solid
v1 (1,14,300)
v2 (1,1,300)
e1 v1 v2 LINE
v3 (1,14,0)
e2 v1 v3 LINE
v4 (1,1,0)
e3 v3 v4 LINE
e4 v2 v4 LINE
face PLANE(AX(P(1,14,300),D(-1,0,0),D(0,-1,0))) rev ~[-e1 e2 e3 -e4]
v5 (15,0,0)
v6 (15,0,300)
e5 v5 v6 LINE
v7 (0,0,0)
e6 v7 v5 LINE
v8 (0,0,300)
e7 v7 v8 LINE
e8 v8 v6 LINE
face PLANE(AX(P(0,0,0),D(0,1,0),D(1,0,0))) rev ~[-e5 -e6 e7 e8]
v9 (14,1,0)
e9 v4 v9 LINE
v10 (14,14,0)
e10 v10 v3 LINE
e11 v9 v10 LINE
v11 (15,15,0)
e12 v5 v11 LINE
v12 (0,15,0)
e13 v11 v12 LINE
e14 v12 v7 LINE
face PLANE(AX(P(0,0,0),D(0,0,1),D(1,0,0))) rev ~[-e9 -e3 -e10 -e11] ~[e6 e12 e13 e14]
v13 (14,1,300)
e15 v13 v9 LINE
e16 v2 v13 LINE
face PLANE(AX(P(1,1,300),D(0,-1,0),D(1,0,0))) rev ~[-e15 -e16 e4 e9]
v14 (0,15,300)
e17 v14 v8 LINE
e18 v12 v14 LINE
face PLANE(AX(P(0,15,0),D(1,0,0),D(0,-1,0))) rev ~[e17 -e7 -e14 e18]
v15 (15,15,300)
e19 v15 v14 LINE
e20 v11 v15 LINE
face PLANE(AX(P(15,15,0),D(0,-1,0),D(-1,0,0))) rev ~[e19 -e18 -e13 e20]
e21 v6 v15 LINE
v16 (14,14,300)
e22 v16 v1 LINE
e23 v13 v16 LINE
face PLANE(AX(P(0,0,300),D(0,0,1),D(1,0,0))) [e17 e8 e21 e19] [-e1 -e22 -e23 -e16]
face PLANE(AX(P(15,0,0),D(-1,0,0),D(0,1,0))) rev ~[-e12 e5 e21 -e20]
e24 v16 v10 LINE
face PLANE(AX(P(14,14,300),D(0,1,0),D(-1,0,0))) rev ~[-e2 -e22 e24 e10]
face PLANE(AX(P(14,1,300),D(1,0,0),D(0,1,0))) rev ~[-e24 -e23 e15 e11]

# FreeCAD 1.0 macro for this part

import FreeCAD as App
import Part
import Sketcher
from FreeCAD import Vector


def add_polygon(sketch, points):
    """Adds a closed chain of lines whose ends are joined by coincident constraints."""
    first, n = sketch.GeometryCount, len(points)
    for a, b in zip(points, points[1:] + points[:1]):
        sketch.addGeometry(Part.LineSegment(App.Vector(*a, 0), App.Vector(*b, 0)), False)
    for i in range(n):
        sketch.addConstraint(Sketcher.Constraint("Coincident", first + i, 2, first + (i + 1) % n, 1))

doc = App.newDocument("Part")
params = doc.addObject("Spreadsheet::Sheet", "Params")
for row, (alias, value) in enumerate([
    ("sketch1_width", "15 mm"),
    ("pad1_length", "300 mm"),
    ("sketch2_width", "13 mm"),
    ("pocket1_length", "300 mm"),
], start=1):
    params.set(f"A{row}", alias)
    params.set(f"B{row}", "=" + value)
    params.setAlias(f"B{row}", alias)

body = doc.addObject("PartDesign::Body", "Body")

# Sketch on XY plane
sketch1 = body.newObject("Sketcher::SketchObject", "Sketch")
sketch1.AttachmentSupport = (doc.getObject("XY_Plane"), [""])
sketch1.MapMode = "FlatFace"
add_polygon(sketch1, [(0, 15), (0, 0), (15, 0), (15, 15)])  # lines 0-3
sketch1.addConstraint([
    Sketcher.Constraint("Vertical", 0),
    Sketcher.Constraint("Horizontal", 1),
    Sketcher.Constraint("Vertical", 2),
    Sketcher.Constraint("Horizontal", 3),
    Sketcher.Constraint("Coincident", 0, 2, -1, 1),
    Sketcher.Constraint("Equal", 3, 0),
    Sketcher.Constraint("DistanceX", 1, 1, 1, 2, 15.0),
])
sketch1.setExpression("Constraints[10]", "Params.sketch1_width")
pad1 = body.newObject("PartDesign::Pad", "Pad")
pad1.Profile = sketch1
pad1.setExpression("Length", "Params.pad1_length")

# Sketch on XY plane
sketch2 = body.newObject("Sketcher::SketchObject", "Sketch001")
sketch2.AttachmentSupport = (doc.getObject("XY_Plane"), [""])
sketch2.MapMode = "FlatFace"
sketch2.AttachmentOffset = App.Placement(Vector(0, 0, 300), App.Rotation())
add_polygon(sketch2, [(1, 14), (1, 1), (14, 1), (14, 14)])  # lines 0-3
sketch2.addConstraint([
    Sketcher.Constraint("Vertical", 0),
    Sketcher.Constraint("Horizontal", 1),
    Sketcher.Constraint("Vertical", 2),
    Sketcher.Constraint("Horizontal", 3),
    Sketcher.Constraint("Equal", 3, 0),
    Sketcher.Constraint("DistanceX", 1, 1, 1, 2, 13.0),
    Sketcher.Constraint("DistanceX", -1, 1, 0, 2, 1.0),
    Sketcher.Constraint("DistanceY", -1, 1, 0, 2, 1.0),
])
sketch2.setExpression("Constraints[9]", "Params.sketch2_width")
pocket1 = body.newObject("PartDesign::Pocket", "Pocket")
pocket1.Profile = sketch2
pocket1.setExpression("Length", "Params.pocket1_length")

doc.recompute()
